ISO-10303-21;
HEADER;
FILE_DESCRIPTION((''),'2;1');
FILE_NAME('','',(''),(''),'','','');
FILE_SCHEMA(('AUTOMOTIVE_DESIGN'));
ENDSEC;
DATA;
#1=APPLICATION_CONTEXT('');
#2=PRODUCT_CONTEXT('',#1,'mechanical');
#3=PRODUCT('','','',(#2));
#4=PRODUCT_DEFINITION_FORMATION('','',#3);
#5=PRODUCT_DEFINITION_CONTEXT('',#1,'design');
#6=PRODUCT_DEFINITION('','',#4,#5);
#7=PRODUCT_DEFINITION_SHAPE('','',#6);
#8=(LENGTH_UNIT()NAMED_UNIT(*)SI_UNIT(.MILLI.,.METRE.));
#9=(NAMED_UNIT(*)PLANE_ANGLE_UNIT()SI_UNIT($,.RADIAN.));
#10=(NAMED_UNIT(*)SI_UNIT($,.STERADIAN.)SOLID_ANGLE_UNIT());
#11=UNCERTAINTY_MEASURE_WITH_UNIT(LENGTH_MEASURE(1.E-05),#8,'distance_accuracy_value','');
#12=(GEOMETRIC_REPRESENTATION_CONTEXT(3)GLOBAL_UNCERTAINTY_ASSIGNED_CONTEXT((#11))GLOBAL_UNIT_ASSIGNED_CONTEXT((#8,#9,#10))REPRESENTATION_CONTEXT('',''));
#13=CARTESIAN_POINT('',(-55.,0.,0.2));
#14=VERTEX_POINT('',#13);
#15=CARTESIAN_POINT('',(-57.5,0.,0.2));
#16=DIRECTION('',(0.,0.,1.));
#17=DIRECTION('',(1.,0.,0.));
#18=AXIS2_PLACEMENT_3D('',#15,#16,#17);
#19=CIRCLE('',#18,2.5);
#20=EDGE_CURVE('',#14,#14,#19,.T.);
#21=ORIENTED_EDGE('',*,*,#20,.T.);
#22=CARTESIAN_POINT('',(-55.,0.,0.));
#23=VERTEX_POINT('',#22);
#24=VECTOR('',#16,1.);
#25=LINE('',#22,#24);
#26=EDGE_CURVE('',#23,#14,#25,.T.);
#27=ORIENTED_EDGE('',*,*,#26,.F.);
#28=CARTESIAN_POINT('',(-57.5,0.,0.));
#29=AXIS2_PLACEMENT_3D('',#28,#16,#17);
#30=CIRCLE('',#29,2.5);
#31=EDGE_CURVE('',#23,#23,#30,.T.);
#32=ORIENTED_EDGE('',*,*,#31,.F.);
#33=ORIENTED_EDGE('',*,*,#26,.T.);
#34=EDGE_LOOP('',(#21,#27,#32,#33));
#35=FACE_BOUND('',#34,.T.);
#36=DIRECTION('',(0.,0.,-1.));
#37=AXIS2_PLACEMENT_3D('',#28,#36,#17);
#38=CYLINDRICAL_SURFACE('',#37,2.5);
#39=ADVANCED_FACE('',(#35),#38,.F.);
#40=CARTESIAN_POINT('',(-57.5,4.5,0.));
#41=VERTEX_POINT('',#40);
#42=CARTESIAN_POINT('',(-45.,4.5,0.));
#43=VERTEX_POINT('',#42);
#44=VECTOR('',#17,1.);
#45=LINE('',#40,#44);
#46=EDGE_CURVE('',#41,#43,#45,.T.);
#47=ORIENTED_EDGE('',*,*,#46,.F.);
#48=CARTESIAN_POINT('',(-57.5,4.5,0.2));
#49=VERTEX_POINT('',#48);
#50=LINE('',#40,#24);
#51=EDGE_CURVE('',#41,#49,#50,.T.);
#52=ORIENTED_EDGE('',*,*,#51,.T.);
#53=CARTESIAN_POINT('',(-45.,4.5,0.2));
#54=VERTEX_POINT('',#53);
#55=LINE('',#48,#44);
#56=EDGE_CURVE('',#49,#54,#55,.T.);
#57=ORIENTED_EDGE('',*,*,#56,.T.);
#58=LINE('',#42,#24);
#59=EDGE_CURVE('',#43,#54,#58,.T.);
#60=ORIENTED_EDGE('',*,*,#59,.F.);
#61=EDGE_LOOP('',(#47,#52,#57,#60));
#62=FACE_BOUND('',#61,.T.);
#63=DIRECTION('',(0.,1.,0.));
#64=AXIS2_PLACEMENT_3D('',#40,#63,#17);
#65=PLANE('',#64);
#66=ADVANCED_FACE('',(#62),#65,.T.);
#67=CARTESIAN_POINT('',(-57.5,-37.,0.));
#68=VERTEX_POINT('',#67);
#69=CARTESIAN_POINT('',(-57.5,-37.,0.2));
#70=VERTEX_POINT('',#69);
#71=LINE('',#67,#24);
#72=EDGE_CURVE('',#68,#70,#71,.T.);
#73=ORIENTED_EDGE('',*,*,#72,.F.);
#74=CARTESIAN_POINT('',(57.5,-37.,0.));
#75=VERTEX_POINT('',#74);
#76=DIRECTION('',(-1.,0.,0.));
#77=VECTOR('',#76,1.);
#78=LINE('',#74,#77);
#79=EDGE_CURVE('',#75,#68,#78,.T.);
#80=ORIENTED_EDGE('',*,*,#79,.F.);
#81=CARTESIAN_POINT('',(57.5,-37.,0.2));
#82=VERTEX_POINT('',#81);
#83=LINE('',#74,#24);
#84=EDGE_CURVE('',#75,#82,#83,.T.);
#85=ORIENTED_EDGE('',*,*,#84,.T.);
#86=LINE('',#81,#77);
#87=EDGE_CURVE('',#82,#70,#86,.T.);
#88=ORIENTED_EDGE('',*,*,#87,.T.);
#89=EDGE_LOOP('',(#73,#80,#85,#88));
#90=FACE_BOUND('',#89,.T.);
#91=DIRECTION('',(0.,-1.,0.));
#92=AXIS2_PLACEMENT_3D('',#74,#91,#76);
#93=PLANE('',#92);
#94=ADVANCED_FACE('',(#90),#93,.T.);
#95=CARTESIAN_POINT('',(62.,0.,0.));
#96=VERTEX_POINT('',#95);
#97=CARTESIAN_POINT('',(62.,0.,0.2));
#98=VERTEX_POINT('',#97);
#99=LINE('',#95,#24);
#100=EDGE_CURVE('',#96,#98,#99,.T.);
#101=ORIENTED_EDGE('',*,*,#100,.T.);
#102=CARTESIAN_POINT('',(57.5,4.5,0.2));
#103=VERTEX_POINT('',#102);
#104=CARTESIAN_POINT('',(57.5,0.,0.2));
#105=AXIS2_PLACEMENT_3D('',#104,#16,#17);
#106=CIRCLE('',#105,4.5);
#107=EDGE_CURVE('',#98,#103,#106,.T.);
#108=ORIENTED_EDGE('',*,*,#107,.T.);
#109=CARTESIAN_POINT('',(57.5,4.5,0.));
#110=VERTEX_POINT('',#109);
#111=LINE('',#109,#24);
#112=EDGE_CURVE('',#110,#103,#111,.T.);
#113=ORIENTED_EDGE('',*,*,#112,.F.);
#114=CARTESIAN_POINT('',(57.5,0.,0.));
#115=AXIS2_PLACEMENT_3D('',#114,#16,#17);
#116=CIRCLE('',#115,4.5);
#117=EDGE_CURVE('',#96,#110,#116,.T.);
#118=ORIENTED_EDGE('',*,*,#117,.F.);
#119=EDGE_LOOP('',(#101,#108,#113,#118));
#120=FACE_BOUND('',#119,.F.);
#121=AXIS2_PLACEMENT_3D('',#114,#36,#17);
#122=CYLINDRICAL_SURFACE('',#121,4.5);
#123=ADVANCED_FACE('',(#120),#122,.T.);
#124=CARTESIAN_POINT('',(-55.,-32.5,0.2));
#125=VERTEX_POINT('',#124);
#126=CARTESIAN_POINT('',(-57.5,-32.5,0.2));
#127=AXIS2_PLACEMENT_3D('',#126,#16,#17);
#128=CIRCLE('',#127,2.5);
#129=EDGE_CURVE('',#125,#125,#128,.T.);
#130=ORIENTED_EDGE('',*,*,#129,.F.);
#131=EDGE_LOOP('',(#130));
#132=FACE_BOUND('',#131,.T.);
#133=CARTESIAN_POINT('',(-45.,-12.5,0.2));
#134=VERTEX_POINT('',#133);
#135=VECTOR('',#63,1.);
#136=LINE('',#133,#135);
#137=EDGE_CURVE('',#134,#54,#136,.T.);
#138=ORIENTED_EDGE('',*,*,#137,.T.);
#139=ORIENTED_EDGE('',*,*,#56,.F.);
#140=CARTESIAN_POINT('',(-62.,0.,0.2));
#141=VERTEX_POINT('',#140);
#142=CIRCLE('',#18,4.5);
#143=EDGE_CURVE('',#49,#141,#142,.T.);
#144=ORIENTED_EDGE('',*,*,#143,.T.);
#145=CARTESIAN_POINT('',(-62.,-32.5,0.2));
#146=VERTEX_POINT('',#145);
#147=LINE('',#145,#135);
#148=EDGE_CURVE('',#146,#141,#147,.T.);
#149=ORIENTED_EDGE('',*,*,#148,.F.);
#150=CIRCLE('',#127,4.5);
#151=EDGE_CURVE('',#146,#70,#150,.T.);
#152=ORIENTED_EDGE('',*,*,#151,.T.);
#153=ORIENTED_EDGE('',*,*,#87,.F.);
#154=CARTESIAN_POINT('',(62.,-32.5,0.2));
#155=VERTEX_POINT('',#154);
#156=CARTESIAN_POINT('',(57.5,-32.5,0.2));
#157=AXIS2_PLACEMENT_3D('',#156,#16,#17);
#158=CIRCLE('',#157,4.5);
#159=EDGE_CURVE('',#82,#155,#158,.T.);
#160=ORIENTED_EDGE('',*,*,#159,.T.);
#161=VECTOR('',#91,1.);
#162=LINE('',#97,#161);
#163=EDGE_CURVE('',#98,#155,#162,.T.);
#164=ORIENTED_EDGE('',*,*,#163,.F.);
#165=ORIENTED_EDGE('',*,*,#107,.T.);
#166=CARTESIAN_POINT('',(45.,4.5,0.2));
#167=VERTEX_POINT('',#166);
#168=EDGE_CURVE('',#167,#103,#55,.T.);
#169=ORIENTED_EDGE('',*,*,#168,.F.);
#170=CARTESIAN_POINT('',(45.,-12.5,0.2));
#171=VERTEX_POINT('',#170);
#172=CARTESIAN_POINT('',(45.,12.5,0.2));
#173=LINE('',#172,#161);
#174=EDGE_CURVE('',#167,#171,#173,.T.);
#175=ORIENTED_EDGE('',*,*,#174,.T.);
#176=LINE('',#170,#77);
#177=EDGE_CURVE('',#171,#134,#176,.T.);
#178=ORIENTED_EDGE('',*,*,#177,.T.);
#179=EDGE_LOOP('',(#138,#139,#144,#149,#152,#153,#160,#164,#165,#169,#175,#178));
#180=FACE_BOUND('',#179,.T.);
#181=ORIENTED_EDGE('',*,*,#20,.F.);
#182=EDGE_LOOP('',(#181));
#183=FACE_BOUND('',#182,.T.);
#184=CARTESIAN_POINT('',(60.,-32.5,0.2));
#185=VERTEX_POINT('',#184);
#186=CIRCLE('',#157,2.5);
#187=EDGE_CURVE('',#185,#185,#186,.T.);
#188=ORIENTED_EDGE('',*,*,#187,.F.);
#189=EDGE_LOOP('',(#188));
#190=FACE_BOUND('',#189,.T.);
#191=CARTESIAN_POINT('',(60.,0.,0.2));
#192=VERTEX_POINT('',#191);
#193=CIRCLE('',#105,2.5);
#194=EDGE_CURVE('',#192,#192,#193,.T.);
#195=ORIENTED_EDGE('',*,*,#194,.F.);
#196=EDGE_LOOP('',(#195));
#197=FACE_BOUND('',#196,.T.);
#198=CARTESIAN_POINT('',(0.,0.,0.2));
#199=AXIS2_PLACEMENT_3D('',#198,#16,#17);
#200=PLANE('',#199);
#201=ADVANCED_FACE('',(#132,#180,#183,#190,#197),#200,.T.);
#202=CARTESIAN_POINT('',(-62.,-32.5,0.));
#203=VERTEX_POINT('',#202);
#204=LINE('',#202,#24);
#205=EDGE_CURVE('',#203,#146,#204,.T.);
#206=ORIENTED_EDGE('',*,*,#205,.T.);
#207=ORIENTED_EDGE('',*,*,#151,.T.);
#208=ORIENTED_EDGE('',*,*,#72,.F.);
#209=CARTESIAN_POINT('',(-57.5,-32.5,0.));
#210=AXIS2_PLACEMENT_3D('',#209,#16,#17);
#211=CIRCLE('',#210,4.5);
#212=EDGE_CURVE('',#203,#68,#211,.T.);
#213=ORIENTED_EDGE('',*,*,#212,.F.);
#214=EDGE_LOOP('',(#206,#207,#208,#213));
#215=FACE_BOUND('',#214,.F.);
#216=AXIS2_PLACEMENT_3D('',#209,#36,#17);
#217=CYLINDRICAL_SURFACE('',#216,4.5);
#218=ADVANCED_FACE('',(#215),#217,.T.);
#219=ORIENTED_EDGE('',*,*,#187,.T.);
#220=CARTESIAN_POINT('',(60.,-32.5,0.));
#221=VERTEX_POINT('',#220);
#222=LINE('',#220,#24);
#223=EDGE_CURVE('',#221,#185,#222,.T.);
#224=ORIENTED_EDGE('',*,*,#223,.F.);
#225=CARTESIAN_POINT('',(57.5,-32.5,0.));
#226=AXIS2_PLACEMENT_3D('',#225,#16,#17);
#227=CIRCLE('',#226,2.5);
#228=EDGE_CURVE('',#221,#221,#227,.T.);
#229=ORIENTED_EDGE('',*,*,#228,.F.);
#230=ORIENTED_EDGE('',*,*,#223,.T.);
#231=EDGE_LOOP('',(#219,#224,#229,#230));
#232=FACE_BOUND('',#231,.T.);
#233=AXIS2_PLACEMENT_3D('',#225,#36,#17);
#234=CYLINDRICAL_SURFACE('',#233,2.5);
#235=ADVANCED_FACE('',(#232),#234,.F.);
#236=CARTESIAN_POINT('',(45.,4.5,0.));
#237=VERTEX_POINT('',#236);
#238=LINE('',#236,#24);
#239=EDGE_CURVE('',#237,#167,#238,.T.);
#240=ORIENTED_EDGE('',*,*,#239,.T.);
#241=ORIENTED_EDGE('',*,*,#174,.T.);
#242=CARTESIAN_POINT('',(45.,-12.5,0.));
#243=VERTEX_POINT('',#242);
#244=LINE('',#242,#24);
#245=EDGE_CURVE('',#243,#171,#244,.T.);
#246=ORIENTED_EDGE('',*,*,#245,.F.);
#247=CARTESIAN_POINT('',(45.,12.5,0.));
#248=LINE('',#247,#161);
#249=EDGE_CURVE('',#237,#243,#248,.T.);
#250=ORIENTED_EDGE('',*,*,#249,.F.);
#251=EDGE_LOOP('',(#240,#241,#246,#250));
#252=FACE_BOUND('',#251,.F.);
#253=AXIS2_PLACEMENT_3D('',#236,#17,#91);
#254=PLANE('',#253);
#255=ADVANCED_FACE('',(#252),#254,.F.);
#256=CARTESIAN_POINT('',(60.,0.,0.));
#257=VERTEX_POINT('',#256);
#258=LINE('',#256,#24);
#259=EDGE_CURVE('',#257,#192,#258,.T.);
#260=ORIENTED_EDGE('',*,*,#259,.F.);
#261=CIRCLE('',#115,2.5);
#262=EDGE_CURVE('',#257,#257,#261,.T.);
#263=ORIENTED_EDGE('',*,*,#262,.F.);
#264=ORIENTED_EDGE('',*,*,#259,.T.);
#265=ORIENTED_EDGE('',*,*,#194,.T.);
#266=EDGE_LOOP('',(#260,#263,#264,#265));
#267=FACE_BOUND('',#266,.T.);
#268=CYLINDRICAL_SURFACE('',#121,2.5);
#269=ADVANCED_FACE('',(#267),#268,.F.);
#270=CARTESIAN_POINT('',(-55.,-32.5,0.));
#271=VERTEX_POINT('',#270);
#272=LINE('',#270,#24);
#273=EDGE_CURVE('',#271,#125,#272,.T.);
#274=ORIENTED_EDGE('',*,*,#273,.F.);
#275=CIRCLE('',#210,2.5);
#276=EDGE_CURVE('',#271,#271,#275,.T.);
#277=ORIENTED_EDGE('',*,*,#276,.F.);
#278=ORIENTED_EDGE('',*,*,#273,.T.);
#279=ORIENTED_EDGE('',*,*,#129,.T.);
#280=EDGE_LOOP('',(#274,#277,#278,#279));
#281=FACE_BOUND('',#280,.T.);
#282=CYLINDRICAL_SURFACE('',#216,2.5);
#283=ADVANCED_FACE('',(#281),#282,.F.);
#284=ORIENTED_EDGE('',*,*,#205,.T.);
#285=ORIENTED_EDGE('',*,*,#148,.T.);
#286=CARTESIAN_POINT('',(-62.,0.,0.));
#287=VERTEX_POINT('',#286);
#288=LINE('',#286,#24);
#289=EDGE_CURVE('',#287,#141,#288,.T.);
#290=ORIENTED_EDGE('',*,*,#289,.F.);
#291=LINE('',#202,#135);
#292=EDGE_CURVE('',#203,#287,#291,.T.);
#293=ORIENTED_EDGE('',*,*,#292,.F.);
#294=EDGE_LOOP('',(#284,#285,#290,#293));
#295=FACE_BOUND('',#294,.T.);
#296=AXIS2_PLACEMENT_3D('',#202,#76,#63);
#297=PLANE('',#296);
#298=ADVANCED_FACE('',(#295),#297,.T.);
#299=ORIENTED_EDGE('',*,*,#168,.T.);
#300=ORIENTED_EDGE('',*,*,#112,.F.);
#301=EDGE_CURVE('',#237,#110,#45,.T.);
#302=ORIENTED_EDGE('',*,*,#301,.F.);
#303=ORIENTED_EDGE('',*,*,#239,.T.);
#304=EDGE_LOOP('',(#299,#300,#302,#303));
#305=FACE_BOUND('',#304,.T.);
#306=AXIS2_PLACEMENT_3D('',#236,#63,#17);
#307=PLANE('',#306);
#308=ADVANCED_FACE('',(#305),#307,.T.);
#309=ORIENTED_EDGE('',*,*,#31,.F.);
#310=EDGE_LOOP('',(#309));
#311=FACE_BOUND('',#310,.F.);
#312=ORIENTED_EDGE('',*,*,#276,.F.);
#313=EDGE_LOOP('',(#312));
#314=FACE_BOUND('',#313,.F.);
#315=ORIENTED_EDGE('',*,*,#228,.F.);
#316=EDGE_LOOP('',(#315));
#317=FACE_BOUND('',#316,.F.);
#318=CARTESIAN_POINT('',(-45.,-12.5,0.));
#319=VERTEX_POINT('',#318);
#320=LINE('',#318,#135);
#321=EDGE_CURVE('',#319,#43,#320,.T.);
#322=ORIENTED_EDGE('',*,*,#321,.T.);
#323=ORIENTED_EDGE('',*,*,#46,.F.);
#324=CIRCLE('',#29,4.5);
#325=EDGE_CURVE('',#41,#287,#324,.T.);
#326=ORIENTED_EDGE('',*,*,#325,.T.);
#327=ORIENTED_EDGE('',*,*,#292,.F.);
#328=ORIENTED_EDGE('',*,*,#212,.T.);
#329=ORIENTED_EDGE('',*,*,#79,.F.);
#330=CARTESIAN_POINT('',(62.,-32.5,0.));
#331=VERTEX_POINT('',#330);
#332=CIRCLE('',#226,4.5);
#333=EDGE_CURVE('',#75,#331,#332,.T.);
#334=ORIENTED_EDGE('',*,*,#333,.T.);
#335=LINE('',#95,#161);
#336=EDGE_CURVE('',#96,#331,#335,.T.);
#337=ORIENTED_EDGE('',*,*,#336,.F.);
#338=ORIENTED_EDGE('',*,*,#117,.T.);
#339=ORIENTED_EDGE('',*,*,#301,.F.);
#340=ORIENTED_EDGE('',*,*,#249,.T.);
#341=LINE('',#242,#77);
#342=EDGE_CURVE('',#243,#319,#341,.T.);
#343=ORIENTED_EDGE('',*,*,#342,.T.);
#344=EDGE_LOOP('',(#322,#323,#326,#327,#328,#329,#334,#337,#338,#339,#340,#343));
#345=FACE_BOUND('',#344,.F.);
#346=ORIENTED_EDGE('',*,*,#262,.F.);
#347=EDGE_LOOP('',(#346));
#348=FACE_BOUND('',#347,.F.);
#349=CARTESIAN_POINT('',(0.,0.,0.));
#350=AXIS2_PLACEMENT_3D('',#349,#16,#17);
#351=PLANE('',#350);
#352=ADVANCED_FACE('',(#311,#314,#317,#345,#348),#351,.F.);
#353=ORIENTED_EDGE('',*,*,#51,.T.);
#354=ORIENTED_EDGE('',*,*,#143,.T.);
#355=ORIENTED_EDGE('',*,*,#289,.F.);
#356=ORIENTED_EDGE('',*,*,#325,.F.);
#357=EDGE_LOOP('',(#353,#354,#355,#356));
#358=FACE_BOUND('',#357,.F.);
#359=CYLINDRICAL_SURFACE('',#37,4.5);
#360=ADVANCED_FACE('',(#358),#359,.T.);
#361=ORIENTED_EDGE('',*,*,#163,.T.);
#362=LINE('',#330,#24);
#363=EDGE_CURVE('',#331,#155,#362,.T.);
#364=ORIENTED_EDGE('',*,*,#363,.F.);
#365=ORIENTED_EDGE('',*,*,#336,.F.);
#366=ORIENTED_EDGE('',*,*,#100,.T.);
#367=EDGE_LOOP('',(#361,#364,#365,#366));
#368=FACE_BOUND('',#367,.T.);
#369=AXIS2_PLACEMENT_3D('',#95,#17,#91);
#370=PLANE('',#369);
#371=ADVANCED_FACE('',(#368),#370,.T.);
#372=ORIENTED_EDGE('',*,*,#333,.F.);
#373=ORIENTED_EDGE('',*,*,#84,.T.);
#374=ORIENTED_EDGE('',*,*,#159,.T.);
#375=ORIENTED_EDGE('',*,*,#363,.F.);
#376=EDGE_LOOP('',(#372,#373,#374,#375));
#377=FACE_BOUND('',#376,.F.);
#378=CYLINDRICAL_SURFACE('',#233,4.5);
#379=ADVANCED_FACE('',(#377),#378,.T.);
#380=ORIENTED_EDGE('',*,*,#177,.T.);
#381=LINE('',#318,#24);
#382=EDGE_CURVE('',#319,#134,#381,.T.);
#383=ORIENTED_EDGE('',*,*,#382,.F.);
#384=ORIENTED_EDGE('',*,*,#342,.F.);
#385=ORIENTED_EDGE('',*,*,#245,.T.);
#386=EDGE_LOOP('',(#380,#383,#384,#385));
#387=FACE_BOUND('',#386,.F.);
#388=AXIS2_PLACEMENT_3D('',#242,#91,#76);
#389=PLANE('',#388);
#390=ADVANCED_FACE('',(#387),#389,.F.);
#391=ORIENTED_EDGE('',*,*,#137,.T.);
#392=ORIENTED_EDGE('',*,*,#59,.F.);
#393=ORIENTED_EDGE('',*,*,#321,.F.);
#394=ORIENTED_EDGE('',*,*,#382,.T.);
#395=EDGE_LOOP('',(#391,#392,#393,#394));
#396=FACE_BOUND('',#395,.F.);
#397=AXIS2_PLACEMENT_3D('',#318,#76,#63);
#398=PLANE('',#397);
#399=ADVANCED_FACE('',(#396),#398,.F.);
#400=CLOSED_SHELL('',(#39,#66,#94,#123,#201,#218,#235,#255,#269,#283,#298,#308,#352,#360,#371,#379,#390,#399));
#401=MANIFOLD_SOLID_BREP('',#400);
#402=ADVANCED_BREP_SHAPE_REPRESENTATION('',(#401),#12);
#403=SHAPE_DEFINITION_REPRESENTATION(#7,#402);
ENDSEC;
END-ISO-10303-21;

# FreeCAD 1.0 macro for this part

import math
import FreeCAD as App
import Part
import Sketcher

doc = App.newDocument("Part")
body = doc.addObject("PartDesign::Body", "Body")

# Sketch on XY plane
sketch1 = body.newObject("Sketcher::SketchObject", "Sketch")
sketch1.AttachmentSupport = (doc.getObject("XY_Plane"), [""])
sketch1.MapMode = "FlatFace"
sketch1.addGeometry(Part.ArcOfCircle(Part.Circle(App.Vector(57.5, 0, 0), App.Vector(0, 0, 1), 4.5), math.radians(0), math.radians(90)), False)
sketch1.addGeometry(Part.LineSegment(App.Vector(57.5, 4.5, 0), App.Vector(45, 4.5, 0)), False)
sketch1.addGeometry(Part.LineSegment(App.Vector(45, 4.5, 0), App.Vector(45, -12.5, 0)), False)
sketch1.addGeometry(Part.LineSegment(App.Vector(45, -12.5, 0), App.Vector(-45, -12.5, 0)), False)
sketch1.addGeometry(Part.LineSegment(App.Vector(-45, -12.5, 0), App.Vector(-45, 4.5, 0)), False)
sketch1.addGeometry(Part.LineSegment(App.Vector(-45, 4.5, 0), App.Vector(-57.5, 4.5, 0)), False)
sketch1.addGeometry(Part.ArcOfCircle(Part.Circle(App.Vector(-57.5, 0, 0), App.Vector(0, 0, 1), 4.5), math.radians(90), math.radians(180)), False)
sketch1.addGeometry(Part.LineSegment(App.Vector(-62, 0, 0), App.Vector(-62, -32.5, 0)), False)
sketch1.addGeometry(Part.ArcOfCircle(Part.Circle(App.Vector(-57.5, -32.5, 0), App.Vector(0, 0, 1), 4.5), math.radians(180), math.radians(270)), False)
sketch1.addGeometry(Part.LineSegment(App.Vector(-57.5, -37, 0), App.Vector(57.5, -37, 0)), False)
sketch1.addGeometry(Part.ArcOfCircle(Part.Circle(App.Vector(57.5, -32.5, 0), App.Vector(0, 0, 1), 4.5), math.radians(-90), math.radians(0)), False)
sketch1.addGeometry(Part.LineSegment(App.Vector(62, -32.5, 0), App.Vector(62, 0, 0)), False)
sketch1.addGeometry(Part.Circle(App.Vector(57.5, 0, 0), App.Vector(0, 0, 1), 2.5), False)
sketch1.addGeometry(Part.Circle(App.Vector(57.5, -32.5, 0), App.Vector(0, 0, 1), 2.5), False)
sketch1.addGeometry(Part.Circle(App.Vector(-57.5, -32.5, 0), App.Vector(0, 0, 1), 2.5), False)
sketch1.addGeometry(Part.Circle(App.Vector(-57.5, 0, 0), App.Vector(0, 0, 1), 2.5), False)
sketch1.addConstraint(Sketcher.Constraint("Tangent", 0, 2, 1, 1))
sketch1.addConstraint(Sketcher.Constraint("Coincident", 1, 2, 2, 1))
sketch1.addConstraint(Sketcher.Constraint("Coincident", 2, 2, 3, 1))
sketch1.addConstraint(Sketcher.Constraint("Coincident", 3, 2, 4, 1))
sketch1.addConstraint(Sketcher.Constraint("Coincident", 4, 2, 5, 1))
sketch1.addConstraint(Sketcher.Constraint("Tangent", 5, 2, 6, 1))
sketch1.addConstraint(Sketcher.Constraint("Tangent", 6, 2, 7, 1))
sketch1.addConstraint(Sketcher.Constraint("Tangent", 7, 2, 8, 1))
sketch1.addConstraint(Sketcher.Constraint("Tangent", 8, 2, 9, 1))
sketch1.addConstraint(Sketcher.Constraint("Tangent", 9, 2, 10, 1))
sketch1.addConstraint(Sketcher.Constraint("Tangent", 10, 2, 11, 1))
sketch1.addConstraint(Sketcher.Constraint("Tangent", 11, 2, 0, 1))
sketch1.addConstraint(Sketcher.Constraint("Horizontal", 1))
sketch1.addConstraint(Sketcher.Constraint("Vertical", 2))
sketch1.addConstraint(Sketcher.Constraint("Horizontal", 3))
sketch1.addConstraint(Sketcher.Constraint("Vertical", 4))
sketch1.addConstraint(Sketcher.Constraint("Horizontal", 5))
sketch1.addConstraint(Sketcher.Constraint("Vertical", 7))
sketch1.addConstraint(Sketcher.Constraint("Horizontal", 9))
sketch1.addConstraint(Sketcher.Constraint("Vertical", 11))
sketch1.addConstraint(Sketcher.Constraint("Coincident", 12, 3, 0, 3))
sketch1.addConstraint(Sketcher.Constraint("Coincident", 13, 3, 10, 3))
sketch1.addConstraint(Sketcher.Constraint("Coincident", 14, 3, 8, 3))
sketch1.addConstraint(Sketcher.Constraint("Coincident", 15, 3, 6, 3))
sketch1.addConstraint(Sketcher.Constraint("Equal", 0, 6))
sketch1.addConstraint(Sketcher.Constraint("Equal", 6, 8))
sketch1.addConstraint(Sketcher.Constraint("Equal", 8, 10))
sketch1.addConstraint(Sketcher.Constraint("Equal", 12, 13))
sketch1.addConstraint(Sketcher.Constraint("Equal", 13, 14))
sketch1.addConstraint(Sketcher.Constraint("Equal", 14, 15))
sketch1.addConstraint(Sketcher.Constraint("Symmetric", 0, 3, 6, 3, -1, 1))
sketch1.addConstraint(Sketcher.Constraint("Symmetric", 1, 2, 4, 2, -2))
sketch1.addConstraint(Sketcher.Constraint("Diameter", 12, 5.0))
sketch1.addConstraint(Sketcher.Constraint("Radius", 0, 4.5))
sketch1.addConstraint(Sketcher.Constraint("DistanceX", 3, 2, 3, 1, 90.0))
sketch1.addConstraint(Sketcher.Constraint("DistanceX", 9, 1, 9, 2, 115.0))
sketch1.addConstraint(Sketcher.Constraint("DistanceY", 2, 2, 2, 1, 17.0))
sketch1.addConstraint(Sketcher.Constraint("DistanceY", 7, 2, 7, 1, 32.5))
pad1 = body.newObject("PartDesign::Pad", "Pad")
pad1.Profile = sketch1
pad1.Length = 0.2

doc.recompute()
